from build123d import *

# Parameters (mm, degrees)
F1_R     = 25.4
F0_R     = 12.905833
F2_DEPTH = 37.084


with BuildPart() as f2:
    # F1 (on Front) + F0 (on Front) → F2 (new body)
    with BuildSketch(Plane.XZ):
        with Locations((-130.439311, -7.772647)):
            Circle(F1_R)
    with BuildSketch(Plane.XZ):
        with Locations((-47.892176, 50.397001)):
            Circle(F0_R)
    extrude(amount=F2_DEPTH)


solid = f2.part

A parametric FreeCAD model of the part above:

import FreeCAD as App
import Part
import Sketcher
from FreeCAD import Vector
Q = App.Units.Quantity

doc = App.newDocument("Part")
body = doc.addObject("PartDesign::Body", "Body")
body.AllowCompound = True

# Sketch on XZ plane
sketch1 = body.newObject("Sketcher::SketchObject", "Sketch")
sketch1.AttachmentSupport = (doc.getObject("XZ_Plane"), [""])
sketch1.MapMode = "FlatFace"
sketch1.addGeometry([
    Part.Circle(Vector(-130.439311, -7.772647, 0), Vector(0, 0, 1), 25.4),
    Part.Circle(Vector(-47.892176, 50.397001, 0), Vector(0, 0, 1), 12.905833),
], False)
sketch1.addConstraint([
    Sketcher.Constraint("Diameter", 0, Q("2 in")),
    Sketcher.Constraint("Diameter", 1, Q("25.811666 mm")),
    Sketcher.Constraint("DistanceY", -1, 1, 1, 3, Q("50.397001 mm")),
    Sketcher.Constraint("DistanceX", 0, 3, -1, 1, Q("130.439311 mm")),
    Sketcher.Constraint("DistanceY", 0, 3, 1, 3, Q("58.169648 mm")),
    Sketcher.Constraint("DistanceX", 1, 3, -1, 1, Q("47.892176 mm")),
])
pad1 = body.newObject("PartDesign::Pad", "Pad")
pad1.Profile = sketch1
pad1.Length = Q("1.46 in")

doc.recompute()
